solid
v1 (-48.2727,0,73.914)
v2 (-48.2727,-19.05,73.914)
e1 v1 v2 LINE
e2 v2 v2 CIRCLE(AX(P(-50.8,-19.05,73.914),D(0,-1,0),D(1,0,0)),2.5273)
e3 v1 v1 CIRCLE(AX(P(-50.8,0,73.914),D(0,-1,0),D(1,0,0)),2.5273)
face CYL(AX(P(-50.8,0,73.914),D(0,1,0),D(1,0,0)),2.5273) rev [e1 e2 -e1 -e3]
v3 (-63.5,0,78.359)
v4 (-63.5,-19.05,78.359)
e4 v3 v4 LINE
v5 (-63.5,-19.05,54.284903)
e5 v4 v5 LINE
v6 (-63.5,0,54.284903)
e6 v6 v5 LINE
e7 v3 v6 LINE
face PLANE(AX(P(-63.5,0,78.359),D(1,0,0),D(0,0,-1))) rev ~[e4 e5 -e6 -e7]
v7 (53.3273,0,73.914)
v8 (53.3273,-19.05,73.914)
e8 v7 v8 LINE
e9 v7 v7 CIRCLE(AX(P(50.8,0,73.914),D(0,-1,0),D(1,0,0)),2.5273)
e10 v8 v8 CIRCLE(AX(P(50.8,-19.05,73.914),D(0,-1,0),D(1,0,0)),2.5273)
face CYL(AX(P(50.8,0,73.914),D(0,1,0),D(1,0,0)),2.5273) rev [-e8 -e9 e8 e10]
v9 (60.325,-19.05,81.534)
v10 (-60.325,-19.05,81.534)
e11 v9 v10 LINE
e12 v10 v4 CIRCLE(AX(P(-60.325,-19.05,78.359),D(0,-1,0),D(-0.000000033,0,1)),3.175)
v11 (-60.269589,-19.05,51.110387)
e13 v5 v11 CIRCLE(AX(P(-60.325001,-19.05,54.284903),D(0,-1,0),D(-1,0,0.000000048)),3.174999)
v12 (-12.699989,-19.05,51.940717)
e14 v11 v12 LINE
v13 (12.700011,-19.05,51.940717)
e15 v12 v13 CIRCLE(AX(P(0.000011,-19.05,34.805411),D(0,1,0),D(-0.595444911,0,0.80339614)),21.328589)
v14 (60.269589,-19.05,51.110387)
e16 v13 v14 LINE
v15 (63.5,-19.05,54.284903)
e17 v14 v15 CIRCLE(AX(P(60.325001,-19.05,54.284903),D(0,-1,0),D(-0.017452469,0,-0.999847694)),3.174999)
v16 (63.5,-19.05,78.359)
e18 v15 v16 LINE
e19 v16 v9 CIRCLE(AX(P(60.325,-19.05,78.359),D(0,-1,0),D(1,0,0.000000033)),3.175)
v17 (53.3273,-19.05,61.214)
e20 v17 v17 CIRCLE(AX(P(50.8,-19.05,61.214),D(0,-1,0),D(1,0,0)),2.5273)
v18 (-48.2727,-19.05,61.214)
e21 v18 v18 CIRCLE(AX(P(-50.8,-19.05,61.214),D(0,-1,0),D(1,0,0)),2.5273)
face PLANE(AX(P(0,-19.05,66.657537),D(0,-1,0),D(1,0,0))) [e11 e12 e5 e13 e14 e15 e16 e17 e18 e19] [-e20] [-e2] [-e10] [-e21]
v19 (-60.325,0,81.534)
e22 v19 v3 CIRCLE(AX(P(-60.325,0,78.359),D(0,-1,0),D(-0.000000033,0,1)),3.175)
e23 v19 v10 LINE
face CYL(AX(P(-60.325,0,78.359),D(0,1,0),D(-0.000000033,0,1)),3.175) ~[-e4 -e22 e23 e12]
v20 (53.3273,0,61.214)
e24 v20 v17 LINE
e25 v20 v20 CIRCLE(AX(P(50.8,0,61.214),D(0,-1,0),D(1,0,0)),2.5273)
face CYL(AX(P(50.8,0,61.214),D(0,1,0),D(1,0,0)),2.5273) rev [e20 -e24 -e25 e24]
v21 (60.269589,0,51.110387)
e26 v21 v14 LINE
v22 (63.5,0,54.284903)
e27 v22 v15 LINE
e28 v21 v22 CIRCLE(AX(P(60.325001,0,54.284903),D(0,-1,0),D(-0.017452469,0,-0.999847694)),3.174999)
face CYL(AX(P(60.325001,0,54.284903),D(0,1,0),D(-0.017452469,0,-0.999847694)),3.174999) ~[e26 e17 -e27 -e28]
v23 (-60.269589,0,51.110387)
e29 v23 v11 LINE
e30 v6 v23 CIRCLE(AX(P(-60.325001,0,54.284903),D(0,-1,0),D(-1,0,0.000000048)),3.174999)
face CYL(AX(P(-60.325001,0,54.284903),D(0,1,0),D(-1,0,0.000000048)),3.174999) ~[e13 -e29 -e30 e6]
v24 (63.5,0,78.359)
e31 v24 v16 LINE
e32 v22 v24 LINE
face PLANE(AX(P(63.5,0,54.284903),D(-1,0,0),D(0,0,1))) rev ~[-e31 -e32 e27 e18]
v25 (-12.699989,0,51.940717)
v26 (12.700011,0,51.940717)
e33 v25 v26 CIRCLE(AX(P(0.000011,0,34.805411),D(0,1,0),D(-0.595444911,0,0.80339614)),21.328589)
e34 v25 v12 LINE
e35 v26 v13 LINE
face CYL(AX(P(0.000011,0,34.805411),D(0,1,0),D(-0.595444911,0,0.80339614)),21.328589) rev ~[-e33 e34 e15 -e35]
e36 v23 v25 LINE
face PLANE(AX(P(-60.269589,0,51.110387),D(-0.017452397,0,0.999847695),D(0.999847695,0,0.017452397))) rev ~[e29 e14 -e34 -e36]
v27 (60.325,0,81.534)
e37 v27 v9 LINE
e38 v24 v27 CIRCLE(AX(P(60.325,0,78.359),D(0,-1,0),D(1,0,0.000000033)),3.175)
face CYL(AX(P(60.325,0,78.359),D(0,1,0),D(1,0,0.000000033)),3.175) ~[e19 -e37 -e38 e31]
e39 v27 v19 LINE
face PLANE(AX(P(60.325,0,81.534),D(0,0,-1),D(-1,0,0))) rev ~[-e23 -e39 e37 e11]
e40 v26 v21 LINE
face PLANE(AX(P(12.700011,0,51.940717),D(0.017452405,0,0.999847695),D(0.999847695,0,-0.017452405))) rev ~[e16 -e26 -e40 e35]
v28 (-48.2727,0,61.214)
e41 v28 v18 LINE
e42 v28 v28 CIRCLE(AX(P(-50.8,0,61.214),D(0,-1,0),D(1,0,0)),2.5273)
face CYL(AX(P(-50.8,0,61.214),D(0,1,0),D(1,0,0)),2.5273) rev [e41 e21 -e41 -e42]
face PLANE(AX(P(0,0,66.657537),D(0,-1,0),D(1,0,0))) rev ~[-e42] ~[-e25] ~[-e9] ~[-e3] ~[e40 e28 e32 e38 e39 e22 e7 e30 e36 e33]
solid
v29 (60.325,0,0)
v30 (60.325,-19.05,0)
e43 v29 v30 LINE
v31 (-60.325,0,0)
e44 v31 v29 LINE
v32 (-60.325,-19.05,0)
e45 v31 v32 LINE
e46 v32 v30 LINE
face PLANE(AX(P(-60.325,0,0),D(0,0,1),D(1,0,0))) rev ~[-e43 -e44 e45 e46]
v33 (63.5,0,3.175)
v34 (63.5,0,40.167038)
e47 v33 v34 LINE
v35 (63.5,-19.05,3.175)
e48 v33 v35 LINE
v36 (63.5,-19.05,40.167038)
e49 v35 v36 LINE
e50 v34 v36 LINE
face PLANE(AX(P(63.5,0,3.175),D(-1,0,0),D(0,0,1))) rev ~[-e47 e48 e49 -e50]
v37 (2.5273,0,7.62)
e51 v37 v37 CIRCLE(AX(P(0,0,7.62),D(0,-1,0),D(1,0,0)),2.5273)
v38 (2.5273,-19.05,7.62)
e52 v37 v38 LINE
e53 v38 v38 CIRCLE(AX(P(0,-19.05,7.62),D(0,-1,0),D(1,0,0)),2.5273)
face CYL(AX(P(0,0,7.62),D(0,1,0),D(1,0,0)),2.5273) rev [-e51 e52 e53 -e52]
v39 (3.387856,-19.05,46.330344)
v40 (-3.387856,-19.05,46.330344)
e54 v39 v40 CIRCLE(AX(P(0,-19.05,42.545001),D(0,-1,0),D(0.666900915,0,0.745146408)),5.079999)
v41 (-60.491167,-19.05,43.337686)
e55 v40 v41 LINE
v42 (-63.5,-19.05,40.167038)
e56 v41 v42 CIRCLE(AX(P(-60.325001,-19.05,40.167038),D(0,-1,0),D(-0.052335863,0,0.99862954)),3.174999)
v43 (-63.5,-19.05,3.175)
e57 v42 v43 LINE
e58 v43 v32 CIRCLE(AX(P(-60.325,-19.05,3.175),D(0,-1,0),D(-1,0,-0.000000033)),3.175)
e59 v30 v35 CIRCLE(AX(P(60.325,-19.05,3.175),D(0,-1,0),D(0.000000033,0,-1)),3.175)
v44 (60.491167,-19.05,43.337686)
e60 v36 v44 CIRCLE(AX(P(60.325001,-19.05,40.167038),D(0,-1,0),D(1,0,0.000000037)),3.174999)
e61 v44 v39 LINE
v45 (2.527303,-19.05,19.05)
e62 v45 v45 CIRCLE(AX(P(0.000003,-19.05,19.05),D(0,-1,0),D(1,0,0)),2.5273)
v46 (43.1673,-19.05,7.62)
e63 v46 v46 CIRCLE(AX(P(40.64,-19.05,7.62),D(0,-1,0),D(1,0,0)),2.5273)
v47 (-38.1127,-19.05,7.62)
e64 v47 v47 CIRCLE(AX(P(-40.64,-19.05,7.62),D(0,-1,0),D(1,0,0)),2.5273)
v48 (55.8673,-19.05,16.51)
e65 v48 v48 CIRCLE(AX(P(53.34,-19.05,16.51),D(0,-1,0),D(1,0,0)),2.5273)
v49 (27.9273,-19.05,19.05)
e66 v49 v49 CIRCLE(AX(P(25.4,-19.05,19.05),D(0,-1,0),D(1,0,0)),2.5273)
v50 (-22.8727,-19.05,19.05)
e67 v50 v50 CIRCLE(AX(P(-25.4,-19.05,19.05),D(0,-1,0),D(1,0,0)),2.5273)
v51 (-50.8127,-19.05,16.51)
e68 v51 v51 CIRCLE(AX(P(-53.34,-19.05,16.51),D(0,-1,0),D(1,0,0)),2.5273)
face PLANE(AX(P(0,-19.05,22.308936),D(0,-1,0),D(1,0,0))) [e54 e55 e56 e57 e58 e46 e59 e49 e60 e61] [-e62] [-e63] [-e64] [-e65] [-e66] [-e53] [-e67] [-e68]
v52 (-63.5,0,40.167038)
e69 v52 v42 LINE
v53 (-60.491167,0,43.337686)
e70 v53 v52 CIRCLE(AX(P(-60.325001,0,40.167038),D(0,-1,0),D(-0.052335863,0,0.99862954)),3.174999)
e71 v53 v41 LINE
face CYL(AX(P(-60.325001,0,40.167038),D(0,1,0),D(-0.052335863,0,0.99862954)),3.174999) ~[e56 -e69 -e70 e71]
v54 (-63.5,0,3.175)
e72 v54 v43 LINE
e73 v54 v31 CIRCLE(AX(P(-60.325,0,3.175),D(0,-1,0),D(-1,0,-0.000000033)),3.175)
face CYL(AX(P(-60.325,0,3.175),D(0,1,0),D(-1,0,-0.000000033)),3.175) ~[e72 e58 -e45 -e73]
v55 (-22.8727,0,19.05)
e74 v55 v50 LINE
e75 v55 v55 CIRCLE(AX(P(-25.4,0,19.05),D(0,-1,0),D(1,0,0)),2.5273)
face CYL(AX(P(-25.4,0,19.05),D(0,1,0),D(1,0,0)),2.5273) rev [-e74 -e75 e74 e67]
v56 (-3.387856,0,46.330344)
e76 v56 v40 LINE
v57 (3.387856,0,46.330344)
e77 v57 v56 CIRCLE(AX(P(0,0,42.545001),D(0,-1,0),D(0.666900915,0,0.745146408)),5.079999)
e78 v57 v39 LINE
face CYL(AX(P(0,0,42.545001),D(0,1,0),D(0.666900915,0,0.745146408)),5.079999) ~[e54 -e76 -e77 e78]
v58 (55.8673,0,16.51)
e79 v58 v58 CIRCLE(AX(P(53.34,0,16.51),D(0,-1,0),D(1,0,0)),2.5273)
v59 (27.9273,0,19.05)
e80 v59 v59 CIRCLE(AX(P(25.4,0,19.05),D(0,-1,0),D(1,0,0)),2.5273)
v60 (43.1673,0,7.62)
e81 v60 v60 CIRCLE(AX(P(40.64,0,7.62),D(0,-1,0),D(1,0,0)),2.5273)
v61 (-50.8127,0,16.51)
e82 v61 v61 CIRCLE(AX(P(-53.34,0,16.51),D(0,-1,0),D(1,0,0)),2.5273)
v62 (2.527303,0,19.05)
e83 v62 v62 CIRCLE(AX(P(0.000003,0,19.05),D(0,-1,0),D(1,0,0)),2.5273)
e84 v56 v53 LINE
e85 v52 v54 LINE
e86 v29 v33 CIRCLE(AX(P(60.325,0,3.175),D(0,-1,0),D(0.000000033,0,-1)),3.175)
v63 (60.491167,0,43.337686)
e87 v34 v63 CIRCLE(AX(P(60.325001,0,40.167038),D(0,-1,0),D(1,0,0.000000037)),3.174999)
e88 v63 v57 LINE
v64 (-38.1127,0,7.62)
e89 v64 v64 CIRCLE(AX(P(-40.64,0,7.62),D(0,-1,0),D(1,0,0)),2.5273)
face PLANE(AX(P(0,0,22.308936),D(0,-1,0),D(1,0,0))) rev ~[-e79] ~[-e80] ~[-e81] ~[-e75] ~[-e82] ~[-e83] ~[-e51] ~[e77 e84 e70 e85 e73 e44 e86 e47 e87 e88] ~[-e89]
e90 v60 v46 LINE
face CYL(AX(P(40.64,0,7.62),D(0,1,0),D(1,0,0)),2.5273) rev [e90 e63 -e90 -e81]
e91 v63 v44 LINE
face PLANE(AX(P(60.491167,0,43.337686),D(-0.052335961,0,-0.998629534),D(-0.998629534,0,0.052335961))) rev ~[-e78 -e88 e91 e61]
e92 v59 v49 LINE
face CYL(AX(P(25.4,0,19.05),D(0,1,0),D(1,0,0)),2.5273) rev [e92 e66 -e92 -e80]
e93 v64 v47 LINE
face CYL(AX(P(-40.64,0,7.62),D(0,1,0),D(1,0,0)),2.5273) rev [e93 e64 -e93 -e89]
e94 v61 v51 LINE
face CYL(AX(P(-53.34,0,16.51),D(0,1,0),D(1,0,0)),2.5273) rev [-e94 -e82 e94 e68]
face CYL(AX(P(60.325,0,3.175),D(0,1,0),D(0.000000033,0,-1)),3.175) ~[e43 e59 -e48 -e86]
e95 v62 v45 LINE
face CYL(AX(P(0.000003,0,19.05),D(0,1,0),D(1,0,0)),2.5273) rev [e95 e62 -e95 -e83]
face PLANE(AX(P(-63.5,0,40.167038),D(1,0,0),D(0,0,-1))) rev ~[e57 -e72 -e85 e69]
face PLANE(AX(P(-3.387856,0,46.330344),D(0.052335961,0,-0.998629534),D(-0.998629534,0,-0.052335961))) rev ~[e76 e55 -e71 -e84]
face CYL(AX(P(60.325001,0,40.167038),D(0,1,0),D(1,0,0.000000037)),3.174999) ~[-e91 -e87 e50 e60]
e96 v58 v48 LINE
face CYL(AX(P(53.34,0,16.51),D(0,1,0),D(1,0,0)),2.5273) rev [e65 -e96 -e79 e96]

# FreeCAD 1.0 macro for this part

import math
import FreeCAD as App
import Part
import Sketcher
from FreeCAD import Vector
Q = App.Units.Quantity

doc = App.newDocument("Part")
body = doc.addObject("PartDesign::Body", "Body")
body.AllowCompound = True

# Sketch on XZ plane
sketch1 = body.newObject("Sketcher::SketchObject", "Sketch")
sketch1.AttachmentSupport = (doc.getObject("XZ_Plane"), [""])
sketch1.MapMode = "FlatFace"
sketch1.addGeometry(Part.ArcOfCircle(Part.Circle(Vector(-60.3, 3.2, 0), Vector(0, 0, 1), 3.2), math.radians(-180), math.radians(-90)), False)
sketch1.addGeometry(Part.LineSegment(Vector(-60.3, 0, 0), Vector(60.3, 0, 0)), False)
sketch1.addGeometry(Part.ArcOfCircle(Part.Circle(Vector(60.3, 3.2, 0), Vector(0, 0, 1), 3.2), math.radians(-90), math.radians(0)), False)
sketch1.addGeometry(Part.LineSegment(Vector(63.5, 3.2, 0), Vector(63.5, 40.2, 0)), False)
sketch1.addGeometry(Part.ArcOfCircle(Part.Circle(Vector(60.3, 40.2, 0), Vector(0, 0, 1), 3.2), math.radians(0), math.radians(87)), False)
sketch1.addGeometry(Part.LineSegment(Vector(60.5, 43.3, 0), Vector(3.4, 46.3, 0)), False)
sketch1.addGeometry(Part.ArcOfCircle(Part.Circle(Vector(0, 42.5, 0), Vector(0, 0, 1), 5.1), math.radians(48), math.radians(132)), False)
sketch1.addGeometry(Part.LineSegment(Vector(-3.4, 46.3, 0), Vector(-60.5, 43.3, 0)), False)
sketch1.addGeometry(Part.ArcOfCircle(Part.Circle(Vector(-60.3, 40.2, 0), Vector(0, 0, 1), 3.2), math.radians(93), math.radians(180)), False)
sketch1.addGeometry(Part.LineSegment(Vector(-63.5, 40.2, 0), Vector(-63.5, 3.2, 0)), False)
sketch1.addGeometry(Part.Circle(Vector(-40.6, 7.6, 0), Vector(0, 0, 1), 2.5), False)
sketch1.addGeometry(Part.Circle(Vector(0, 7.6, 0), Vector(0, 0, 1), 2.5), False)
sketch1.addGeometry(Part.Circle(Vector(40.6, 7.6, 0), Vector(0, 0, 1), 2.5), False)
sketch1.addGeometry(Part.Circle(Vector(-53.3, 16.5, 0), Vector(0, 0, 1), 2.5), False)
sketch1.addGeometry(Part.Circle(Vector(-25.4, 19.1, 0), Vector(0, 0, 1), 2.5), False)
sketch1.addGeometry(Part.Circle(Vector(53.3, 16.5, 0), Vector(0, 0, 1), 2.5), False)
sketch1.addGeometry(Part.Circle(Vector(0, 19.1, 0), Vector(0, 0, 1), 2.5), False)
sketch1.addGeometry(Part.Circle(Vector(25.4, 19.1, 0), Vector(0, 0, 1), 2.5), False)
sketch1.addGeometry(Part.LineSegment(Vector(60.3, 81.5, 0), Vector(-60.3, 81.5, 0)), False)
sketch1.addGeometry(Part.ArcOfCircle(Part.Circle(Vector(-60.3, 78.4, 0), Vector(0, 0, 1), 3.2), math.radians(90), math.radians(180)), False)
sketch1.addGeometry(Part.LineSegment(Vector(-63.5, 78.4, 0), Vector(-63.5, 54.3, 0)), False)
sketch1.addGeometry(Part.ArcOfCircle(Part.Circle(Vector(-60.3, 54.3, 0), Vector(0, 0, 1), 3.2), math.radians(180), math.radians(271)), False)
sketch1.addGeometry(Part.LineSegment(Vector(-60.3, 51.1, 0), Vector(-12.7, 51.9, 0)), False)
sketch1.addGeometry(Part.ArcOfCircle(Part.Circle(Vector(0, 34.8, 0), Vector(0, 0, 1), 21.3), math.radians(53), math.radians(127)), False)
sketch1.addGeometry(Part.LineSegment(Vector(12.7, 51.9, 0), Vector(60.3, 51.1, 0)), False)
sketch1.addGeometry(Part.ArcOfCircle(Part.Circle(Vector(60.3, 54.3, 0), Vector(0, 0, 1), 3.2), math.radians(-91), math.radians(0)), False)
sketch1.addGeometry(Part.LineSegment(Vector(63.5, 54.3, 0), Vector(63.5, 78.4, 0)), False)
sketch1.addGeometry(Part.ArcOfCircle(Part.Circle(Vector(60.3, 78.4, 0), Vector(0, 0, 1), 3.2), math.radians(0), math.radians(90)), False)
sketch1.addGeometry(Part.Circle(Vector(-50.8, 61.2, 0), Vector(0, 0, 1), 2.5), False)
sketch1.addGeometry(Part.Circle(Vector(50.8, 61.2, 0), Vector(0, 0, 1), 2.5), False)
sketch1.addGeometry(Part.Circle(Vector(-50.8, 73.9, 0), Vector(0, 0, 1), 2.5), False)
sketch1.addGeometry(Part.Circle(Vector(50.8, 73.9, 0), Vector(0, 0, 1), 2.5), False)
sketch1.addConstraint(Sketcher.Constraint("Tangent", 0, 2, 1, 1))
sketch1.addConstraint(Sketcher.Constraint("Tangent", 1, 2, 2, 1))
sketch1.addConstraint(Sketcher.Constraint("Tangent", 2, 2, 3, 1))
sketch1.addConstraint(Sketcher.Constraint("Tangent", 3, 2, 4, 1))
sketch1.addConstraint(Sketcher.Constraint("Tangent", 4, 2, 5, 1))
sketch1.addConstraint(Sketcher.Constraint("Coincident", 5, 2, 6, 1))
sketch1.addConstraint(Sketcher.Constraint("Coincident", 6, 2, 7, 1))
sketch1.addConstraint(Sketcher.Constraint("Tangent", 7, 2, 8, 1))
sketch1.addConstraint(Sketcher.Constraint("Tangent", 8, 2, 9, 1))
sketch1.addConstraint(Sketcher.Constraint("Tangent", 9, 2, 0, 1))
sketch1.addConstraint(Sketcher.Constraint("Tangent", 18, 2, 19, 1))
sketch1.addConstraint(Sketcher.Constraint("Tangent", 19, 2, 20, 1))
sketch1.addConstraint(Sketcher.Constraint("Tangent", 20, 2, 21, 1))
sketch1.addConstraint(Sketcher.Constraint("Tangent", 21, 2, 22, 1))
sketch1.addConstraint(Sketcher.Constraint("Coincident", 22, 2, 23, 2))
sketch1.addConstraint(Sketcher.Constraint("Coincident", 23, 1, 24, 1))
sketch1.addConstraint(Sketcher.Constraint("Tangent", 24, 2, 25, 1))
sketch1.addConstraint(Sketcher.Constraint("Tangent", 25, 2, 26, 1))
sketch1.addConstraint(Sketcher.Constraint("Tangent", 26, 2, 27, 1))
sketch1.addConstraint(Sketcher.Constraint("Tangent", 27, 2, 18, 1))
sketch1.addConstraint(Sketcher.Constraint("Horizontal", 1))
sketch1.addConstraint(Sketcher.Constraint("Vertical", 3))
sketch1.addConstraint(Sketcher.Constraint("Vertical", 9))
sketch1.addConstraint(Sketcher.Constraint("Horizontal", 18))
sketch1.addConstraint(Sketcher.Constraint("Vertical", 20))
sketch1.addConstraint(Sketcher.Constraint("Vertical", 26))
sketch1.addConstraint(Sketcher.Constraint("Equal", 0, 2))
sketch1.addConstraint(Sketcher.Constraint("Equal", 2, 4))
sketch1.addConstraint(Sketcher.Constraint("Equal", 4, 8))
sketch1.addConstraint(Sketcher.Constraint("Equal", 10, 11))
sketch1.addConstraint(Sketcher.Constraint("Equal", 11, 12))
sketch1.addConstraint(Sketcher.Constraint("Equal", 12, 13))
sketch1.addConstraint(Sketcher.Constraint("Equal", 13, 14))
sketch1.addConstraint(Sketcher.Constraint("Equal", 14, 15))
sketch1.addConstraint(Sketcher.Constraint("Equal", 15, 16))
sketch1.addConstraint(Sketcher.Constraint("Equal", 16, 17))
sketch1.addConstraint(Sketcher.Constraint("Equal", 8, 19))
sketch1.addConstraint(Sketcher.Constraint("Equal", 19, 21))
sketch1.addConstraint(Sketcher.Constraint("Equal", 21, 25))
sketch1.addConstraint(Sketcher.Constraint("Equal", 25, 27))
sketch1.addConstraint(Sketcher.Constraint("Equal", 17, 28))
sketch1.addConstraint(Sketcher.Constraint("Equal", 28, 29))
sketch1.addConstraint(Sketcher.Constraint("Equal", 29, 30))
sketch1.addConstraint(Sketcher.Constraint("Equal", 30, 31))
sketch1.addConstraint(Sketcher.Constraint("Symmetric", 0, 2, 1, 2, -1, 1))
sketch1.addConstraint(Sketcher.Constraint("Symmetric", 10, 3, 12, 3, -2))
sketch1.addConstraint(Sketcher.Constraint("Symmetric", 13, 3, 15, 3, -2))
sketch1.addConstraint(Sketcher.Constraint("Symmetric", 14, 3, 17, 3, -2))
sketch1.addConstraint(Sketcher.Constraint("Symmetric", 21, 3, 25, 3, -2))
sketch1.addConstraint(Sketcher.Constraint("Symmetric", 28, 3, 29, 3, -2))
sketch1.addConstraint(Sketcher.Constraint("Symmetric", 30, 3, 31, 3, -2))
sketch1.addConstraint(Sketcher.Constraint("Symmetric", 5, 2, 6, 2, -2))
sketch1.addConstraint(Sketcher.Constraint("PointOnObject", 11, 3, -2))
sketch1.addConstraint(Sketcher.Constraint("Horizontal", 4, 3, 8, 3))
sketch1.addConstraint(Sketcher.Constraint("Horizontal", 10, 3, 11, 3))
sketch1.addConstraint(Sketcher.Constraint("Horizontal", 14, 3, 16, 3))
sketch1.addConstraint(Sketcher.Constraint("Horizontal", 22, 2, 23, 1))
sketch1.addConstraint(Sketcher.Constraint("Vertical", 8, 3, 19, 3))
sketch1.addConstraint(Sketcher.Constraint("Vertical", 28, 3, 30, 3))
sketch1.addConstraint(Sketcher.Constraint("Radius", 6, Q("0.2 in")))
sketch1.addConstraint(Sketcher.Constraint("Diameter", 10, Q("0.199 in")))
sketch1.addConstraint(Sketcher.Constraint("DistanceX", 14, 3, -1, 1, Q("1 in")))
sketch1.addConstraint(Sketcher.Constraint("DistanceX", 28, 3, -1, 1, Q("2 in")))
sketch1.addConstraint(Sketcher.Constraint("Angle", 5, Q("177 deg")))
sketch1.addConstraint(Sketcher.Constraint("Angle", 22, Q("0.999999 deg")))
sketch1.addConstraint(Sketcher.Constraint("Angle", 24, Q("-1 deg")))
sketch1.addConstraint(Sketcher.Constraint("Radius", 0, Q("0.125 in")))
sketch1.addConstraint(Sketcher.Constraint("DistanceX", 14, 3, 16, 3, Q("1.0000001 in")))
sketch1.addConstraint(Sketcher.Constraint("DistanceX", 22, 2, 23, 1, Q("1 in")))
sketch1.addConstraint(Sketcher.Constraint("DistanceX", 1, 1, 1, 2, Q("4.75 in")))
sketch1.addConstraint(Sketcher.Constraint("DistanceX", 10, 3, -1, 1, Q("1.6 in")))
sketch1.addConstraint(Sketcher.Constraint("DistanceY", -1, 1, 10, 3, Q("0.3 in")))
sketch1.addConstraint(Sketcher.Constraint("DistanceX", 13, 3, -1, 1, Q("2.1 in")))
sketch1.addConstraint(Sketcher.Constraint("DistanceY", 13, 3, 14, 3, Q("0.1 in")))
sketch1.addConstraint(Sketcher.Constraint("DistanceY", 28, 3, 30, 3, Q("0.5 in")))
sketch1.addConstraint(Sketcher.Constraint("DistanceY", 30, 3, 18, 2, Q("0.3 in")))
sketch1.addConstraint(Sketcher.Constraint("DistanceY", -1, 1, 13, 3, Q("0.65 in")))
sketch1.addConstraint(Sketcher.Constraint("DistanceY", -1, 1, 28, 3, Q("2.41 in")))
sketch1.addConstraint(Sketcher.Constraint("DistanceY", 0, 3, 6, 3, Q("1.55 in")))
sketch1.addConstraint(Sketcher.Constraint("Radius", 23, 21.328589))
sketch1.addConstraint(Sketcher.Constraint("DistanceY", 7, 2, 21, 2, 7.772701))
sketch1.addConstraint(Sketcher.Constraint("DistanceY", 3, 1, 3, 2, 36.992038))
pad1 = body.newObject("PartDesign::Pad", "Pad")
pad1.Profile = sketch1
pad1.Length = Q("0.75 in")

doc.recompute()
